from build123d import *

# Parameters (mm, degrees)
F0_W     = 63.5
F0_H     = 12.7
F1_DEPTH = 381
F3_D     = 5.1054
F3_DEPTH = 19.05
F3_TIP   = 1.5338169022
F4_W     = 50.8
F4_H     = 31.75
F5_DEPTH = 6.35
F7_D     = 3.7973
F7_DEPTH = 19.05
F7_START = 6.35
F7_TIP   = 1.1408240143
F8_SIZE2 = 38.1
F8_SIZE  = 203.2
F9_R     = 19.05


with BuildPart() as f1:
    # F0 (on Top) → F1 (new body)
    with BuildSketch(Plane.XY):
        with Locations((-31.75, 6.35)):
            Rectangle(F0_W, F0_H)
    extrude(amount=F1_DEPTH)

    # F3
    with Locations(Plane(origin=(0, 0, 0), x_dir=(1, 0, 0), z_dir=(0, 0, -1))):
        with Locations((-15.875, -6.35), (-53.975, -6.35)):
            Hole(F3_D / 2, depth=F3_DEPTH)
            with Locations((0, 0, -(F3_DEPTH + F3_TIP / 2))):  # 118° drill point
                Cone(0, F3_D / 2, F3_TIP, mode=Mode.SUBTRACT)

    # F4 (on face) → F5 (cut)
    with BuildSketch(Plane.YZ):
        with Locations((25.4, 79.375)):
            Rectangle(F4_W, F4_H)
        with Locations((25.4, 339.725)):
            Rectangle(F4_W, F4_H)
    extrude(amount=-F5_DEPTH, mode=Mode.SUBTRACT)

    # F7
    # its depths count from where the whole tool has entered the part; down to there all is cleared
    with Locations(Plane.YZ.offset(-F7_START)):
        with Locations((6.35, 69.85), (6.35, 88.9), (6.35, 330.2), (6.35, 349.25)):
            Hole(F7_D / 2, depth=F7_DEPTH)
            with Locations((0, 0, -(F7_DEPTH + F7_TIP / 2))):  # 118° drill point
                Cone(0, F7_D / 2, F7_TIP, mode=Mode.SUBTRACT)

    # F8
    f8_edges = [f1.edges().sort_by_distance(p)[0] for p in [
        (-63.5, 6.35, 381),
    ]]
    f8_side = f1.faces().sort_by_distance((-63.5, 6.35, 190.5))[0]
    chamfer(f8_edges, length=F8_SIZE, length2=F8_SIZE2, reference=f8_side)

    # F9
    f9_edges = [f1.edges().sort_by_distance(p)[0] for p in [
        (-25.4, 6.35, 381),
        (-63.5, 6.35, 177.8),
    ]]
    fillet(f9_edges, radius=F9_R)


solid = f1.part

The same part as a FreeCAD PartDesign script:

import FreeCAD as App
import Part
import Sketcher

V = App.Vector
Q = App.Units.Quantity


def edges_at(feature, points):
    """Names of the edges that pass closest to the given points."""
    edges = feature.Shape.Edges
    near = lambda p: min(range(len(edges)), key=lambda i: edges[i].distToShape(Part.Vertex(*p))[0])
    return sorted({f"Edge{near(p) + 1}" for p in points})

doc = App.newDocument("Part")
body = doc.addObject("PartDesign::Body", "Body")

# Sketch on XY plane
sketch1 = body.newObject("Sketcher::SketchObject", "Sketch")
sketch1.AttachmentSupport = (doc.getObject("XY_Plane"), [""])
sketch1.MapMode = "FlatFace"
sketch1.addGeometry(Part.LineSegment(V(-64, 13, 0), V(-64, 0, 0)), False)
sketch1.addGeometry(Part.LineSegment(V(-64, 0, 0), V(0, 0, 0)), False)
sketch1.addGeometry(Part.LineSegment(V(0, 0, 0), V(0, 13, 0)), False)
sketch1.addGeometry(Part.LineSegment(V(0, 13, 0), V(-64, 13, 0)), False)
sketch1.addConstraint(Sketcher.Constraint("Coincident", 0, 2, 1, 1))
sketch1.addConstraint(Sketcher.Constraint("Coincident", 1, 2, 2, 1))
sketch1.addConstraint(Sketcher.Constraint("Coincident", 2, 2, 3, 1))
sketch1.addConstraint(Sketcher.Constraint("Coincident", 3, 2, 0, 1))
sketch1.addConstraint(Sketcher.Constraint("Vertical", 0))
sketch1.addConstraint(Sketcher.Constraint("Horizontal", 1))
sketch1.addConstraint(Sketcher.Constraint("Vertical", 2))
sketch1.addConstraint(Sketcher.Constraint("Horizontal", 3))
sketch1.addConstraint(Sketcher.Constraint("Coincident", 1, 2, -1, 1))
sketch1.addConstraint(Sketcher.Constraint("DistanceX", 1, 1, 1, 2, Q("2.5 in")))
sketch1.addConstraint(Sketcher.Constraint("DistanceY", 0, 2, 0, 1, Q("0.5 in")))
pad1 = body.newObject("PartDesign::Pad", "Pad")
pad1.Profile = sketch1
pad1.Length = Q("15 in")

# Sketch on XY plane
sketch2 = body.newObject("Sketcher::SketchObject", "Sketch001")
sketch2.AttachmentSupport = (doc.getObject("XY_Plane"), [""])
sketch2.MapMode = "FlatFace"
sketch2.addGeometry(Part.Circle(V(-15.9, 6.3, 0), V(0, 0, 1), 2.6), False)
sketch2.addGeometry(Part.Circle(V(-54, 6.3, 0), V(0, 0, 1), 2.6), False)
sketch2.addConstraint(Sketcher.Constraint("Equal", 0, 1))
sketch2.addConstraint(Sketcher.Constraint("Horizontal", 0, 3, 1, 3))
sketch2.addConstraint(Sketcher.Constraint("Diameter", 0, Q("0.201 in")))
sketch2.addConstraint(Sketcher.Constraint("DistanceX", 1, 3, 0, 3, Q("1.5 in")))
sketch2.addConstraint(Sketcher.Constraint("DistanceY", -1, 1, 0, 3, Q("0.25 in")))
sketch2.addConstraint(Sketcher.Constraint("DistanceX", 0, 3, -1, 1, Q("0.625 in")))
doc.recompute()
hole = body.newObject("PartDesign::Hole", "Hole")
hole.Profile = sketch2
hole.ThreadType = "None"
hole.Diameter = Q("0.201 in")
hole.DepthType = "Dimension"
hole.Depth = Q("0.75 in")
hole.DrillPoint = "Angled"
hole.DrillPointAngle = 118
hole.Reversed = True

# Sketch on YZ plane
sketch3 = body.newObject("Sketcher::SketchObject", "Sketch002")
sketch3.AttachmentSupport = (doc.getObject("YZ_Plane"), [""])
sketch3.MapMode = "FlatFace"
sketch3.addGeometry(Part.LineSegment(V(0, 95, 0), V(0, 64, 0)), False)
sketch3.addGeometry(Part.LineSegment(V(0, 64, 0), V(51, 64, 0)), False)
sketch3.addGeometry(Part.LineSegment(V(51, 64, 0), V(51, 95, 0)), False)
sketch3.addGeometry(Part.LineSegment(V(51, 95, 0), V(0, 95, 0)), False)
sketch3.addGeometry(Part.LineSegment(V(0, 356, 0), V(0, 324, 0)), False)
sketch3.addGeometry(Part.LineSegment(V(0, 324, 0), V(51, 324, 0)), False)
sketch3.addGeometry(Part.LineSegment(V(51, 324, 0), V(51, 356, 0)), False)
sketch3.addGeometry(Part.LineSegment(V(51, 356, 0), V(0, 356, 0)), False)
sketch3.addConstraint(Sketcher.Constraint("Coincident", 0, 2, 1, 1))
sketch3.addConstraint(Sketcher.Constraint("Coincident", 1, 2, 2, 1))
sketch3.addConstraint(Sketcher.Constraint("Coincident", 2, 2, 3, 1))
sketch3.addConstraint(Sketcher.Constraint("Coincident", 3, 2, 0, 1))
sketch3.addConstraint(Sketcher.Constraint("Coincident", 4, 2, 5, 1))
sketch3.addConstraint(Sketcher.Constraint("Coincident", 5, 2, 6, 1))
sketch3.addConstraint(Sketcher.Constraint("Coincident", 6, 2, 7, 1))
sketch3.addConstraint(Sketcher.Constraint("Coincident", 7, 2, 4, 1))
sketch3.addConstraint(Sketcher.Constraint("Vertical", 0))
sketch3.addConstraint(Sketcher.Constraint("Horizontal", 1))
sketch3.addConstraint(Sketcher.Constraint("Vertical", 2))
sketch3.addConstraint(Sketcher.Constraint("Horizontal", 3))
sketch3.addConstraint(Sketcher.Constraint("Vertical", 4))
sketch3.addConstraint(Sketcher.Constraint("Horizontal", 5))
sketch3.addConstraint(Sketcher.Constraint("Vertical", 6))
sketch3.addConstraint(Sketcher.Constraint("Horizontal", 7))
sketch3.addConstraint(Sketcher.Constraint("PointOnObject", 0, 2, -2))
sketch3.addConstraint(Sketcher.Constraint("PointOnObject", 4, 2, -2))
sketch3.addConstraint(Sketcher.Constraint("Vertical", 2, 2, 5, 2))
sketch3.addConstraint(Sketcher.Constraint("Equal", 2, 4))
sketch3.addConstraint(Sketcher.Constraint("DistanceX", 1, 1, 1, 2, Q("2 in")))
sketch3.addConstraint(Sketcher.Constraint("DistanceY", -1, 1, 6, 2, Q("14 in")))
sketch3.addConstraint(Sketcher.Constraint("DistanceY", 3, 2, 4, 2, Q("9 in")))
sketch3.addConstraint(Sketcher.Constraint("DistanceY", 0, 2, 0, 1, Q("1.25 in")))
pocket1 = body.newObject("PartDesign::Pocket", "Pocket")
pocket1.Profile = sketch3
pocket1.Length = Q("0.25 in")

# Sketch on YZ plane
sketch4 = body.newObject("Sketcher::SketchObject", "Sketch003")
sketch4.AttachmentSupport = (doc.getObject("YZ_Plane"), [""])
sketch4.MapMode = "FlatFace"
sketch4.AttachmentOffset = App.Placement(V(0, 0, -0.25 * 25.4), App.Rotation())
sketch4.addGeometry(Part.Circle(V(6.3, 69.8, 0), V(0, 0, 1), 1.9), False)
sketch4.addGeometry(Part.Circle(V(6.3, 88.9, 0), V(0, 0, 1), 1.9), False)
sketch4.addGeometry(Part.Circle(V(6.3, 330.2, 0), V(0, 0, 1), 1.9), False)
sketch4.addGeometry(Part.Circle(V(6.3, 349.2, 0), V(0, 0, 1), 1.9), False)
sketch4.addConstraint(Sketcher.Constraint("Equal", 0, 1))
sketch4.addConstraint(Sketcher.Constraint("Equal", 1, 2))
sketch4.addConstraint(Sketcher.Constraint("Equal", 2, 3))
sketch4.addConstraint(Sketcher.Constraint("Vertical", 0, 3, 1, 3))
sketch4.addConstraint(Sketcher.Constraint("Vertical", 1, 3, 2, 3))
sketch4.addConstraint(Sketcher.Constraint("Vertical", 2, 3, 3, 3))
sketch4.addConstraint(Sketcher.Constraint("DistanceY", -1, 1, 2, 3, Q("13 in")))
sketch4.addConstraint(Sketcher.Constraint("DistanceY", 0, 3, 3, 3, Q("11 in")))
sketch4.addConstraint(Sketcher.Constraint("Diameter", 0, Q("0.1495 in")))
sketch4.addConstraint(Sketcher.Constraint("DistanceY", -1, 1, 1, 3, Q("3.5 in")))
sketch4.addConstraint(Sketcher.Constraint("DistanceX", -1, 1, 0, 3, Q("0.25 in")))
sketch4.addConstraint(Sketcher.Constraint("DistanceY", -1, 1, 0, 3, Q("2.75 in")))
doc.recompute()
hole2 = body.newObject("PartDesign::Hole", "Hole001")
hole2.Profile = sketch4
hole2.ThreadType = "None"
hole2.Diameter = Q("0.1495 in")
hole2.DepthType = "Dimension"
hole2.Depth = Q("0.75 in")
hole2.DrillPoint = "Angled"
hole2.DrillPointAngle = 118
doc.recompute()

chamfer = body.newObject("PartDesign::Chamfer", "Chamfer")
chamfer.Base = (hole2, edges_at(hole2, [(-63.5, 6.35, 381)]))
chamfer.ChamferType = "Two distances"
chamfer.Size = Q("8 in")
chamfer.Size2 = Q("1.5 in")
doc.recompute()

fillet = body.newObject("PartDesign::Fillet", "Fillet")
fillet.Base = (chamfer, edges_at(chamfer, [(-25.4, 6.35, 381), (-63.5, 6.35, 177.8)]))
fillet.Radius = Q("0.75 in")

doc.recompute()
